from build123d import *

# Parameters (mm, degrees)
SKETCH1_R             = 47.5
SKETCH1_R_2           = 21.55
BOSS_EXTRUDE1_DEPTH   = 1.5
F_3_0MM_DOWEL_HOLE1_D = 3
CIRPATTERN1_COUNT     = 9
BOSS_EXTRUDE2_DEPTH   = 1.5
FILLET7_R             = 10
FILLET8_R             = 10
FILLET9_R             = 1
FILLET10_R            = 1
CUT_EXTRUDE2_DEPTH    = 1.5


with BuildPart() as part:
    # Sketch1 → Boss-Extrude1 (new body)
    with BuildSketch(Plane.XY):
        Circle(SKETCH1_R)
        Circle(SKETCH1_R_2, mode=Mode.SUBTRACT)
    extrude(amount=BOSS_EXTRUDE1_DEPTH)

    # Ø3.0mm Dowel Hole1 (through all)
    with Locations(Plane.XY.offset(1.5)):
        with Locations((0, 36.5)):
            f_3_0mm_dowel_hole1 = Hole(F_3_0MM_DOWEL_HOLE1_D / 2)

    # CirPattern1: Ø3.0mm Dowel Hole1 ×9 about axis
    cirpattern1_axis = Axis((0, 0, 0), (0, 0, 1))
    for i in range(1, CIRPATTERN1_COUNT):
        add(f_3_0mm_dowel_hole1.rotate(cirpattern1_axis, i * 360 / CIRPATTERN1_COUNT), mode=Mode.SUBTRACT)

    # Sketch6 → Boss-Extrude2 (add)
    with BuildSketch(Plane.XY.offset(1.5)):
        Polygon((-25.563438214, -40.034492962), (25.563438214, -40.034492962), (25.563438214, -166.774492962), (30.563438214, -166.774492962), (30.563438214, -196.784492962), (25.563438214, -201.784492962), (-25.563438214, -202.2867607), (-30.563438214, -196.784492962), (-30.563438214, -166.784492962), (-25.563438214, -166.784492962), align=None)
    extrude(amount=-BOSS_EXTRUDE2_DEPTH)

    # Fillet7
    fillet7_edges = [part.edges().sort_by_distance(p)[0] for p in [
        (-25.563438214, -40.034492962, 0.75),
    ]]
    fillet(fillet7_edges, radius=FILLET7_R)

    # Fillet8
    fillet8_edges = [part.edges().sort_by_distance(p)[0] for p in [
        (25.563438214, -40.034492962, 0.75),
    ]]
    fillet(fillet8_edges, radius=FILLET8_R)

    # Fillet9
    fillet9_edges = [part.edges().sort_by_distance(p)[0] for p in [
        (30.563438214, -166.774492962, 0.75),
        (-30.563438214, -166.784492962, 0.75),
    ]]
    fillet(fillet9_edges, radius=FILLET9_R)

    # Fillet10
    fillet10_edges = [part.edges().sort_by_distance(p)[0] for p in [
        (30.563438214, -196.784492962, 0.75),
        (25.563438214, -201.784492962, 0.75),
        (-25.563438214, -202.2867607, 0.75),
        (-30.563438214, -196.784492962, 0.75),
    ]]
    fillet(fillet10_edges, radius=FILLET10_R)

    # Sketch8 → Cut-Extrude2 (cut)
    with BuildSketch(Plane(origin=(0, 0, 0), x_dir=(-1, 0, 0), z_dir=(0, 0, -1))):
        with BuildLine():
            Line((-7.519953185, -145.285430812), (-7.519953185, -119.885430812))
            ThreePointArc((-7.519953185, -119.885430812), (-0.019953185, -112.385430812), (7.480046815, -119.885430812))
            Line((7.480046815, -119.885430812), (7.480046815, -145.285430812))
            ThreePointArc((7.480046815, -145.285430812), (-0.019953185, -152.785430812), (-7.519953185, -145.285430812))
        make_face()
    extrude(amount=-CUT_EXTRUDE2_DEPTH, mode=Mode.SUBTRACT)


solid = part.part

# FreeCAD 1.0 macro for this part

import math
import FreeCAD as App
import Part
import Sketcher

V = App.Vector
Q = App.Units.Quantity


def edges_at(feature, points):
    """Names of the edges that pass closest to the given points."""
    edges = feature.Shape.Edges
    near = lambda p: min(range(len(edges)), key=lambda i: edges[i].distToShape(Part.Vertex(*p))[0])
    return sorted({f"Edge{near(p) + 1}" for p in points})


def add_polygon(sketch, points):
    """Adds a closed chain of lines whose ends are joined by coincident constraints."""
    first, n = sketch.GeometryCount, len(points)
    for a, b in zip(points, points[1:] + points[:1]):
        sketch.addGeometry(Part.LineSegment(App.Vector(*a, 0), App.Vector(*b, 0)), False)
    for i in range(n):
        sketch.addConstraint(Sketcher.Constraint("Coincident", first + i, 2, first + (i + 1) % n, 1))

doc = App.newDocument("Part")
body = doc.addObject("PartDesign::Body", "Body")

# Sketch on XY plane
sketch1 = body.newObject("Sketcher::SketchObject", "Sketch")
sketch1.AttachmentSupport = (doc.getObject("XY_Plane"), [""])
sketch1.MapMode = "FlatFace"
sketch1.addGeometry(Part.Circle(V(0, 0, 0), V(0, 0, 1), 47.5), False)
sketch1.addGeometry(Part.Circle(V(0, 0, 0), V(0, 0, 1), 21.55), False)
sketch1.addConstraint(Sketcher.Constraint("Coincident", 0, 3, -1, 1))
sketch1.addConstraint(Sketcher.Constraint("Coincident", 1, 3, -1, 1))
sketch1.addConstraint(Sketcher.Constraint("Diameter", 0, Q("95 mm")))
sketch1.addConstraint(Sketcher.Constraint("Diameter", 1, Q("43.1 mm")))
pad1 = body.newObject("PartDesign::Pad", "Pad")
pad1.Profile = sketch1
pad1.Length = 1.5

# Sketch on XY plane
sketch2 = body.newObject("Sketcher::SketchObject", "Sketch001")
sketch2.AttachmentSupport = (doc.getObject("XY_Plane"), [""])
sketch2.MapMode = "FlatFace"
sketch2.AttachmentOffset = App.Placement(V(0, 0, 1.5), App.Rotation())
sketch2.addGeometry(Part.Circle(V(0, 36.5, 0), V(0, 0, 1), 1.5), False)
sketch2.addConstraint(Sketcher.Constraint("PointOnObject", 0, 3, -2))
sketch2.addConstraint(Sketcher.Constraint("Diameter", 0, Q("3 mm")))
sketch2.addConstraint(Sketcher.Constraint("DistanceY", -1, 1, 0, 3, Q("36.5 mm")))
doc.recompute()
hole = body.newObject("PartDesign::Hole", "Hole")
hole.Profile = sketch2
hole.ThreadType = "None"
hole.Diameter = 3
hole.DepthType = "ThroughAll"
doc.recompute()

polarpattern = body.newObject("PartDesign::PolarPattern", "PolarPattern")
polarpattern.Originals = [hole]
polarpattern.Axis = (doc.getObject("Z_Axis"), [""])
polarpattern.Angle = 360
polarpattern.Occurrences = 9
body.Tip = polarpattern

# Sketch on XY plane
sketch3 = body.newObject("Sketcher::SketchObject", "Sketch002")
sketch3.AttachmentSupport = (doc.getObject("XY_Plane"), [""])
sketch3.MapMode = "FlatFace"
sketch3.AttachmentOffset = App.Placement(V(0, 0, 1.5), App.Rotation())
add_polygon(sketch3, [(25.563438, -40.034493), (-25.563438, -40.034493), (-25.563438, -166.784493), (-30.563438, -166.784493), (-30.563438, -196.784493), (-25.563438, -202.286761), (25.563438, -201.784493), (30.563438, -196.784493), (30.563438, -166.774493), (25.563438, -166.774493)])  # lines 0-9
sketch3.addConstraint(Sketcher.Constraint("Horizontal", 0))
sketch3.addConstraint(Sketcher.Constraint("Vertical", 1))
sketch3.addConstraint(Sketcher.Constraint("Horizontal", 2))
sketch3.addConstraint(Sketcher.Constraint("Vertical", 3))
sketch3.addConstraint(Sketcher.Constraint("Vertical", 7))
sketch3.addConstraint(Sketcher.Constraint("Horizontal", 8))
sketch3.addConstraint(Sketcher.Constraint("Vertical", 9))
sketch3.addConstraint(Sketcher.Constraint("Symmetric", 3, 2, 6, 2, -2))
sketch3.addConstraint(Sketcher.Constraint("Vertical", 1, 2, 4, 2))
sketch3.addConstraint(Sketcher.Constraint("Vertical", 5, 2, 8, 2))
sketch3.addConstraint(Sketcher.Constraint("Equal", 2, 8))
sketch3.addConstraint(Sketcher.Constraint("DistanceX", 2, 2, 2, 1, Q("5 mm")))
sketch3.addConstraint(Sketcher.Constraint("DistanceY", 3, 2, 3, 1, Q("30 mm")))
sketch3.addConstraint(Sketcher.Constraint("Angle", 6, Q("45 deg")))
sketch3.addConstraint(Sketcher.Constraint("DistanceY", 1, 2, 1, 1, Q("126.75 mm")))
sketch3.addConstraint(Sketcher.Constraint("DistanceY", 7, 1, 7, 2, Q("30.01 mm")))
sketch3.addConstraint(Sketcher.Constraint("DistanceX", 0, 2, 0, 1, Q("51.126876 mm")))
sketch3.addConstraint(Sketcher.Constraint("DistanceY", 4, 2, -1, 1, Q("202.286761 mm")))
sketch3.addConstraint(Sketcher.Constraint("Distance", 4, Q("7.434713 mm")))
pad2 = body.newObject("PartDesign::Pad", "Pad001")
pad2.Profile = sketch3
pad2.Length = 1.5
pad2.Reversed = True
doc.recompute()

fillet = body.newObject("PartDesign::Fillet", "Fillet")
fillet.Base = (pad2, edges_at(pad2, [(-25.563, -40.034, 0.75)]))
fillet.Radius = 10
doc.recompute()

fillet2 = body.newObject("PartDesign::Fillet", "Fillet001")
fillet2.Base = (fillet, edges_at(fillet, [(25.563, -40.034, 0.75)]))
fillet2.Radius = 10
doc.recompute()

fillet3 = body.newObject("PartDesign::Fillet", "Fillet002")
fillet3.Base = (fillet2, edges_at(fillet2, [(30.563, -166.774, 0.75), (-30.563, -166.784, 0.75)]))
fillet3.Radius = 1
doc.recompute()

fillet4 = body.newObject("PartDesign::Fillet", "Fillet003")
fillet4.Base = (fillet3, edges_at(fillet3, [
    (30.563, -196.784, 0.75),
    (25.563, -201.784, 0.75),
    (-25.563, -202.287, 0.75),
    (-30.563, -196.784, 0.75),
]))
fillet4.Radius = 1

# Sketch on XY plane
sketch4 = body.newObject("Sketcher::SketchObject", "Sketch003")
sketch4.AttachmentSupport = (doc.getObject("XY_Plane"), [""])
sketch4.MapMode = "FlatFace"
sketch4.addGeometry(Part.LineSegment(V(7.519953, -119.885431, 0), V(7.519953, -145.285431, 0)), False)
sketch4.addGeometry(Part.ArcOfCircle(Part.Circle(V(0.019953, -145.285431, 0), V(0, 0, 1), 7.5), math.radians(180), math.radians(360)), False)
sketch4.addGeometry(Part.LineSegment(V(-7.480047, -145.285431, 0), V(-7.480047, -119.885431, 0)), False)
sketch4.addGeometry(Part.ArcOfCircle(Part.Circle(V(0.019953, -119.885431, 0), V(0, 0, 1), 7.5), math.radians(0), math.radians(180)), False)
sketch4.addConstraint(Sketcher.Constraint("Tangent", 0, 2, 1, 2))
sketch4.addConstraint(Sketcher.Constraint("Tangent", 1, 1, 2, 1))
sketch4.addConstraint(Sketcher.Constraint("Tangent", 2, 2, 3, 2))
sketch4.addConstraint(Sketcher.Constraint("Tangent", 3, 1, 0, 1))
sketch4.addConstraint(Sketcher.Constraint("Vertical", 0))
sketch4.addConstraint(Sketcher.Constraint("Vertical", 2))
sketch4.addConstraint(Sketcher.Constraint("Radius", 1, Q("7.5 mm")))
sketch4.addConstraint(Sketcher.Constraint("DistanceY", 0, 2, 0, 1, Q("25.4 mm")))
sketch4.addConstraint(Sketcher.Constraint("DistanceY", 1, 3, -1, 1, Q("145.285431 mm")))
sketch4.addConstraint(Sketcher.Constraint("DistanceX", -1, 1, 1, 3, Q("0.019953 mm")))
pocket1 = body.newObject("PartDesign::Pocket", "Pocket")
pocket1.Profile = sketch4
pocket1.Length = 1.5
pocket1.Reversed = True

doc.recompute()
